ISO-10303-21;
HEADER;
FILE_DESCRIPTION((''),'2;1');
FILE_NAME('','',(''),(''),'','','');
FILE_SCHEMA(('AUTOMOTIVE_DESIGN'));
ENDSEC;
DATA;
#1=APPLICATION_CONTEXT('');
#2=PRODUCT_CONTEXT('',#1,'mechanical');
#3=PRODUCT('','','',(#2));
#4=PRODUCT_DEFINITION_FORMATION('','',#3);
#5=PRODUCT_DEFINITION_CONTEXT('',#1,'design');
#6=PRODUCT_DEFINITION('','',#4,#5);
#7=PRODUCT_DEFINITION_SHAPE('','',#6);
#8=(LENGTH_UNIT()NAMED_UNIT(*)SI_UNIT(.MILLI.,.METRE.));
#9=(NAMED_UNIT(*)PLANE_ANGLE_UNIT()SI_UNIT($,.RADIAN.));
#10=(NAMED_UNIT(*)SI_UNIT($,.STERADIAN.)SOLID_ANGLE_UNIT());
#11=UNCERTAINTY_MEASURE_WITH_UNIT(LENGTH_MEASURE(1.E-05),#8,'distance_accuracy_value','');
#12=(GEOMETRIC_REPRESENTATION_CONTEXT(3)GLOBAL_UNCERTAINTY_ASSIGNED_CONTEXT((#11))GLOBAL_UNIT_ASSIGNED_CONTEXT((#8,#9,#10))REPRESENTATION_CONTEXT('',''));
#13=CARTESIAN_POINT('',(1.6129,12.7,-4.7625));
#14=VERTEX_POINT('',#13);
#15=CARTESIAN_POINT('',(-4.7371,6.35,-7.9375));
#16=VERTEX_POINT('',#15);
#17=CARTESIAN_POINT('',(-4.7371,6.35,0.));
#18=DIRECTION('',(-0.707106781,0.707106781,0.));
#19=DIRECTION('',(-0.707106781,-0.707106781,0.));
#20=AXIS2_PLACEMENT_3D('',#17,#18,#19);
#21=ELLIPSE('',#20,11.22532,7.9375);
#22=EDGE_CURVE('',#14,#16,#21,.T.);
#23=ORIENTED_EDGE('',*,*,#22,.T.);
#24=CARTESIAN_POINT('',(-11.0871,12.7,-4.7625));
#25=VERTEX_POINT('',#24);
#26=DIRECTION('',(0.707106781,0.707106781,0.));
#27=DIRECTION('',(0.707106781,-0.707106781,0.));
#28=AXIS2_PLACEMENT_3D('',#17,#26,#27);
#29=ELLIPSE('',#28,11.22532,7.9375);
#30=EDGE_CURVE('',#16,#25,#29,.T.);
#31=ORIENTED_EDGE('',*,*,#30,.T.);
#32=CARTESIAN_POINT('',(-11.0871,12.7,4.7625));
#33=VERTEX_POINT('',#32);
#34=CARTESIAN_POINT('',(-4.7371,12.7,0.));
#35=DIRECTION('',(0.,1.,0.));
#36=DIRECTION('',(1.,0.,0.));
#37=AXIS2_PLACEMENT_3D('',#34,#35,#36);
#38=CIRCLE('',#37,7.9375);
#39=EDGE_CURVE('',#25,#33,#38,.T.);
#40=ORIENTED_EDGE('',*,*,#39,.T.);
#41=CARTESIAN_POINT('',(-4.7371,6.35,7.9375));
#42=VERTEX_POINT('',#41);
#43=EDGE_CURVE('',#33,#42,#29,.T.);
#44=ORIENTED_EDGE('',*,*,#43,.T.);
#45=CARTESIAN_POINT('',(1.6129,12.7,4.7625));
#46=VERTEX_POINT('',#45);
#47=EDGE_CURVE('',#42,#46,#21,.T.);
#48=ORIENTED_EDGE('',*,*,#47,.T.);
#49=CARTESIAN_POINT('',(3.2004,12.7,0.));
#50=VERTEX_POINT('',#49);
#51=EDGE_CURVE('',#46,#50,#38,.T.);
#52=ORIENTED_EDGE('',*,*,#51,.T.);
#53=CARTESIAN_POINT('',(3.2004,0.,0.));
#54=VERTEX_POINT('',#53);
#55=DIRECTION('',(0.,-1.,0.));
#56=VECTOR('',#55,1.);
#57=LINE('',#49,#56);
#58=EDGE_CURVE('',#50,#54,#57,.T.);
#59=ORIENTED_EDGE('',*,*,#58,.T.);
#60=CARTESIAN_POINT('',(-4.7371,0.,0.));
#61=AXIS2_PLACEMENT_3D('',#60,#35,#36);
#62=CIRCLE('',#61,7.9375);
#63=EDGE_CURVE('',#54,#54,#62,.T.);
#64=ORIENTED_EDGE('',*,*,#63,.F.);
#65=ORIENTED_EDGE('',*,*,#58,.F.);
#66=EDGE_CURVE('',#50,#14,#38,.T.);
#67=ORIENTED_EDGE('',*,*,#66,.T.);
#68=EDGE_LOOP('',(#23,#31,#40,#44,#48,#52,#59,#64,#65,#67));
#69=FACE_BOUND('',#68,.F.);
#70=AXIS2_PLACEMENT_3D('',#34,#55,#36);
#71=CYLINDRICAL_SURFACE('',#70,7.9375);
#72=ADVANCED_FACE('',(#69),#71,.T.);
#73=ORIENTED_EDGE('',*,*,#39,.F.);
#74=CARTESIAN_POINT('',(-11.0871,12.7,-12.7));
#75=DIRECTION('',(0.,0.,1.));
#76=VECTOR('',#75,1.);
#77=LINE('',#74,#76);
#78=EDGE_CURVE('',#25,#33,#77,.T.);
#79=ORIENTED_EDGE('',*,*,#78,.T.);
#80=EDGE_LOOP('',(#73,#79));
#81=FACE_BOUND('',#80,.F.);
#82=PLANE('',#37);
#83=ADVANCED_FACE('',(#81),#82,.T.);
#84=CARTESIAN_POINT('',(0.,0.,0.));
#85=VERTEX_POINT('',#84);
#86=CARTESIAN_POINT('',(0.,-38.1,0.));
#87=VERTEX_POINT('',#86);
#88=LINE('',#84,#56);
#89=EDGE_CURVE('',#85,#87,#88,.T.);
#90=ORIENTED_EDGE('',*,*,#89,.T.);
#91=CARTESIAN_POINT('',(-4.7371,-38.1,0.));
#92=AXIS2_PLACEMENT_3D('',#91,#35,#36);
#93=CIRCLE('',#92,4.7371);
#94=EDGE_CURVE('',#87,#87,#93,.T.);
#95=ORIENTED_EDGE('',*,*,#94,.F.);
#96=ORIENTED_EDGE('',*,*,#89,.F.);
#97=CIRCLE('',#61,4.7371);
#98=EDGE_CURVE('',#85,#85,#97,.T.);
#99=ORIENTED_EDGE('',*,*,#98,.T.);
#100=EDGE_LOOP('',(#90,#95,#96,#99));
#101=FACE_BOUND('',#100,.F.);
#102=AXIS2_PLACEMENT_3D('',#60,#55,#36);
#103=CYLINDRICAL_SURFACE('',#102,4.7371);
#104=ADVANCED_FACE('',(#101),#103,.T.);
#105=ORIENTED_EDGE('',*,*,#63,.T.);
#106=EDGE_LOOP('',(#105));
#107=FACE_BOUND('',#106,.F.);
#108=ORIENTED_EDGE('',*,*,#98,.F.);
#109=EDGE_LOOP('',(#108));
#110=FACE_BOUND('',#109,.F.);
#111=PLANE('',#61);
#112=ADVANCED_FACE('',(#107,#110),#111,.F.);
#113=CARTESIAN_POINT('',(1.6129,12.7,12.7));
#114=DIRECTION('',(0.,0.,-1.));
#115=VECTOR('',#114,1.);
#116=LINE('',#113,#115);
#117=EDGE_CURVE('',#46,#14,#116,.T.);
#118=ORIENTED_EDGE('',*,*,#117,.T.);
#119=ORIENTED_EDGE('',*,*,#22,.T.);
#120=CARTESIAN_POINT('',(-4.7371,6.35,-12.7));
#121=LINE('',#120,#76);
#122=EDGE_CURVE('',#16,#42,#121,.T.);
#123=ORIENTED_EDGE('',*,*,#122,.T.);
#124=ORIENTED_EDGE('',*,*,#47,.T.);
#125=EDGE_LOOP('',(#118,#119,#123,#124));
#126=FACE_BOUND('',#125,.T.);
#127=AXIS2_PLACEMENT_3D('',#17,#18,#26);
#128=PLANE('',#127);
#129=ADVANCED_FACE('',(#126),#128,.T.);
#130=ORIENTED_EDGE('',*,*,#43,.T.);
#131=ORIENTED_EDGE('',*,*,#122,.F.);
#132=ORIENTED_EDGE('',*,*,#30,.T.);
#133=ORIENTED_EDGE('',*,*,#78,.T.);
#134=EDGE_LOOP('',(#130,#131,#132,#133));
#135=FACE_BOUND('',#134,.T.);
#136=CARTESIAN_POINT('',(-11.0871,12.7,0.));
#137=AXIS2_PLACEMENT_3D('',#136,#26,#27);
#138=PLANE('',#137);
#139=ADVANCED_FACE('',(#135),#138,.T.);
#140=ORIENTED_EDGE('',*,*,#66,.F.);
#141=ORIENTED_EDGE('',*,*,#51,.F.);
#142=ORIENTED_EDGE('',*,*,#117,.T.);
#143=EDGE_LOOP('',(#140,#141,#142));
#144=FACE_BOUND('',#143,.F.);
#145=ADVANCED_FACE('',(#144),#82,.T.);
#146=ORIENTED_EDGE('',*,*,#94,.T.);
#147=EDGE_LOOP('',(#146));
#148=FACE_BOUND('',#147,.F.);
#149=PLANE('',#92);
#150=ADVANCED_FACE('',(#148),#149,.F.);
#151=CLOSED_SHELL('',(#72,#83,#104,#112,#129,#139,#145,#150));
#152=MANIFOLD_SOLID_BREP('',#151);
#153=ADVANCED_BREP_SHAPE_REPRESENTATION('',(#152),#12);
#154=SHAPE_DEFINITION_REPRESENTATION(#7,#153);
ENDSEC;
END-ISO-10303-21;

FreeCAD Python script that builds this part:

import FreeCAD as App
import Part
import Sketcher
Q = App.Units.Quantity

doc = App.newDocument("Part")
body = doc.addObject("PartDesign::Body", "Body")

# Sketch on XY plane
sketch1 = body.newObject("Sketcher::SketchObject", "Sketch")
sketch1.AttachmentSupport = (doc.getObject("XY_Plane"), [""])
sketch1.MapMode = "FlatFace"
sketch1.addGeometry(Part.LineSegment(App.Vector(3.2, 12.7, 0), App.Vector(-4.7, 12.7, 0)), False)
sketch1.addGeometry(Part.LineSegment(App.Vector(-4.7, 12.7, 0), App.Vector(-4.7, -38.1, 0)), False)
sketch1.addGeometry(Part.LineSegment(App.Vector(-4.7, -38.1, 0), App.Vector(0, -38.1, 0)), False)
sketch1.addGeometry(Part.LineSegment(App.Vector(0, -38.1, 0), App.Vector(0, 0, 0)), False)
sketch1.addGeometry(Part.LineSegment(App.Vector(0, 0, 0), App.Vector(3.2, 0, 0)), False)
sketch1.addGeometry(Part.LineSegment(App.Vector(3.2, 0, 0), App.Vector(3.2, 12.7, 0)), False)
sketch1.addGeometry(Part.LineSegment(App.Vector(-4.7, -38.1, 0), App.Vector(-4.7, 12.7, 0)), True)  # axis
sketch1.addConstraint(Sketcher.Constraint("Coincident", 0, 2, 1, 1))
sketch1.addConstraint(Sketcher.Constraint("Coincident", 1, 2, 2, 1))
sketch1.addConstraint(Sketcher.Constraint("Coincident", 2, 2, 3, 1))
sketch1.addConstraint(Sketcher.Constraint("Coincident", 3, 2, 4, 1))
sketch1.addConstraint(Sketcher.Constraint("Coincident", 4, 2, 5, 1))
sketch1.addConstraint(Sketcher.Constraint("Coincident", 5, 2, 0, 1))
sketch1.addConstraint(Sketcher.Constraint("Horizontal", 0))
sketch1.addConstraint(Sketcher.Constraint("Vertical", 1))
sketch1.addConstraint(Sketcher.Constraint("Horizontal", 2))
sketch1.addConstraint(Sketcher.Constraint("Vertical", 3))
sketch1.addConstraint(Sketcher.Constraint("Horizontal", 4))
sketch1.addConstraint(Sketcher.Constraint("Vertical", 5))
sketch1.addConstraint(Sketcher.Constraint("Vertical", 6))
sketch1.addConstraint(Sketcher.Constraint("Coincident", 3, 2, -1, 1))
sketch1.addConstraint(Sketcher.Constraint("Coincident", 6, 1, 1, 2))
sketch1.addConstraint(Sketcher.Constraint("Horizontal", 5, 2, 6, 2))
sketch1.addConstraint(Sketcher.Constraint("DistanceY", 1, 2, 1, 1, Q("2 in")))
sketch1.addConstraint(Sketcher.Constraint("DistanceY", 5, 1, 5, 2, Q("0.5 in")))
sketch1.addConstraint(Sketcher.Constraint("DistanceX", 0, 2, 0, 1, Q("0.3125 in")))
sketch1.addConstraint(Sketcher.Constraint("DistanceX", 4, 1, 4, 2, Q("0.126 in")))
revolution = body.newObject("PartDesign::Revolution", "Revolution")
revolution.Profile = sketch1
revolution.ReferenceAxis = (sketch1, ["Axis0"])
revolution.Angle = 360

# Sketch on XY plane
sketch2 = body.newObject("Sketcher::SketchObject", "Sketch001")
sketch2.AttachmentSupport = (doc.getObject("XY_Plane"), [""])
sketch2.MapMode = "FlatFace"
sketch2.addGeometry(Part.LineSegment(App.Vector(2, 13, 0), App.Vector(-11, 13, 0)), False)
sketch2.addGeometry(Part.LineSegment(App.Vector(-11, 13, 0), App.Vector(-5, 6, 0)), False)
sketch2.addGeometry(Part.LineSegment(App.Vector(-5, 6, 0), App.Vector(2, 13, 0)), False)
sketch2.addConstraint(Sketcher.Constraint("Coincident", 0, 2, 1, 1))
sketch2.addConstraint(Sketcher.Constraint("Coincident", 1, 2, 2, 1))
sketch2.addConstraint(Sketcher.Constraint("Coincident", 2, 2, 0, 1))
sketch2.addConstraint(Sketcher.Constraint("Horizontal", 0))
sketch2.addConstraint(Sketcher.Constraint("Perpendicular", 1, 2))
sketch2.addConstraint(Sketcher.Constraint("Equal", 1, 2))
sketch2.addConstraint(Sketcher.Constraint("DistanceX", 0, 2, 0, 1, Q("0.5 in")))
sketch2.addConstraint(Sketcher.Constraint("DistanceY", -1, 1, 0, 2, Q("0.5 in")))
sketch2.addConstraint(Sketcher.Constraint("DistanceX", 0, 2, -1, 1, Q("0.4365 in")))
pocket1 = body.newObject("PartDesign::Pocket", "Pocket")
pocket1.Profile = sketch2
pocket1.Length = Q("1 in")
pocket1.Midplane = True

doc.recompute()
